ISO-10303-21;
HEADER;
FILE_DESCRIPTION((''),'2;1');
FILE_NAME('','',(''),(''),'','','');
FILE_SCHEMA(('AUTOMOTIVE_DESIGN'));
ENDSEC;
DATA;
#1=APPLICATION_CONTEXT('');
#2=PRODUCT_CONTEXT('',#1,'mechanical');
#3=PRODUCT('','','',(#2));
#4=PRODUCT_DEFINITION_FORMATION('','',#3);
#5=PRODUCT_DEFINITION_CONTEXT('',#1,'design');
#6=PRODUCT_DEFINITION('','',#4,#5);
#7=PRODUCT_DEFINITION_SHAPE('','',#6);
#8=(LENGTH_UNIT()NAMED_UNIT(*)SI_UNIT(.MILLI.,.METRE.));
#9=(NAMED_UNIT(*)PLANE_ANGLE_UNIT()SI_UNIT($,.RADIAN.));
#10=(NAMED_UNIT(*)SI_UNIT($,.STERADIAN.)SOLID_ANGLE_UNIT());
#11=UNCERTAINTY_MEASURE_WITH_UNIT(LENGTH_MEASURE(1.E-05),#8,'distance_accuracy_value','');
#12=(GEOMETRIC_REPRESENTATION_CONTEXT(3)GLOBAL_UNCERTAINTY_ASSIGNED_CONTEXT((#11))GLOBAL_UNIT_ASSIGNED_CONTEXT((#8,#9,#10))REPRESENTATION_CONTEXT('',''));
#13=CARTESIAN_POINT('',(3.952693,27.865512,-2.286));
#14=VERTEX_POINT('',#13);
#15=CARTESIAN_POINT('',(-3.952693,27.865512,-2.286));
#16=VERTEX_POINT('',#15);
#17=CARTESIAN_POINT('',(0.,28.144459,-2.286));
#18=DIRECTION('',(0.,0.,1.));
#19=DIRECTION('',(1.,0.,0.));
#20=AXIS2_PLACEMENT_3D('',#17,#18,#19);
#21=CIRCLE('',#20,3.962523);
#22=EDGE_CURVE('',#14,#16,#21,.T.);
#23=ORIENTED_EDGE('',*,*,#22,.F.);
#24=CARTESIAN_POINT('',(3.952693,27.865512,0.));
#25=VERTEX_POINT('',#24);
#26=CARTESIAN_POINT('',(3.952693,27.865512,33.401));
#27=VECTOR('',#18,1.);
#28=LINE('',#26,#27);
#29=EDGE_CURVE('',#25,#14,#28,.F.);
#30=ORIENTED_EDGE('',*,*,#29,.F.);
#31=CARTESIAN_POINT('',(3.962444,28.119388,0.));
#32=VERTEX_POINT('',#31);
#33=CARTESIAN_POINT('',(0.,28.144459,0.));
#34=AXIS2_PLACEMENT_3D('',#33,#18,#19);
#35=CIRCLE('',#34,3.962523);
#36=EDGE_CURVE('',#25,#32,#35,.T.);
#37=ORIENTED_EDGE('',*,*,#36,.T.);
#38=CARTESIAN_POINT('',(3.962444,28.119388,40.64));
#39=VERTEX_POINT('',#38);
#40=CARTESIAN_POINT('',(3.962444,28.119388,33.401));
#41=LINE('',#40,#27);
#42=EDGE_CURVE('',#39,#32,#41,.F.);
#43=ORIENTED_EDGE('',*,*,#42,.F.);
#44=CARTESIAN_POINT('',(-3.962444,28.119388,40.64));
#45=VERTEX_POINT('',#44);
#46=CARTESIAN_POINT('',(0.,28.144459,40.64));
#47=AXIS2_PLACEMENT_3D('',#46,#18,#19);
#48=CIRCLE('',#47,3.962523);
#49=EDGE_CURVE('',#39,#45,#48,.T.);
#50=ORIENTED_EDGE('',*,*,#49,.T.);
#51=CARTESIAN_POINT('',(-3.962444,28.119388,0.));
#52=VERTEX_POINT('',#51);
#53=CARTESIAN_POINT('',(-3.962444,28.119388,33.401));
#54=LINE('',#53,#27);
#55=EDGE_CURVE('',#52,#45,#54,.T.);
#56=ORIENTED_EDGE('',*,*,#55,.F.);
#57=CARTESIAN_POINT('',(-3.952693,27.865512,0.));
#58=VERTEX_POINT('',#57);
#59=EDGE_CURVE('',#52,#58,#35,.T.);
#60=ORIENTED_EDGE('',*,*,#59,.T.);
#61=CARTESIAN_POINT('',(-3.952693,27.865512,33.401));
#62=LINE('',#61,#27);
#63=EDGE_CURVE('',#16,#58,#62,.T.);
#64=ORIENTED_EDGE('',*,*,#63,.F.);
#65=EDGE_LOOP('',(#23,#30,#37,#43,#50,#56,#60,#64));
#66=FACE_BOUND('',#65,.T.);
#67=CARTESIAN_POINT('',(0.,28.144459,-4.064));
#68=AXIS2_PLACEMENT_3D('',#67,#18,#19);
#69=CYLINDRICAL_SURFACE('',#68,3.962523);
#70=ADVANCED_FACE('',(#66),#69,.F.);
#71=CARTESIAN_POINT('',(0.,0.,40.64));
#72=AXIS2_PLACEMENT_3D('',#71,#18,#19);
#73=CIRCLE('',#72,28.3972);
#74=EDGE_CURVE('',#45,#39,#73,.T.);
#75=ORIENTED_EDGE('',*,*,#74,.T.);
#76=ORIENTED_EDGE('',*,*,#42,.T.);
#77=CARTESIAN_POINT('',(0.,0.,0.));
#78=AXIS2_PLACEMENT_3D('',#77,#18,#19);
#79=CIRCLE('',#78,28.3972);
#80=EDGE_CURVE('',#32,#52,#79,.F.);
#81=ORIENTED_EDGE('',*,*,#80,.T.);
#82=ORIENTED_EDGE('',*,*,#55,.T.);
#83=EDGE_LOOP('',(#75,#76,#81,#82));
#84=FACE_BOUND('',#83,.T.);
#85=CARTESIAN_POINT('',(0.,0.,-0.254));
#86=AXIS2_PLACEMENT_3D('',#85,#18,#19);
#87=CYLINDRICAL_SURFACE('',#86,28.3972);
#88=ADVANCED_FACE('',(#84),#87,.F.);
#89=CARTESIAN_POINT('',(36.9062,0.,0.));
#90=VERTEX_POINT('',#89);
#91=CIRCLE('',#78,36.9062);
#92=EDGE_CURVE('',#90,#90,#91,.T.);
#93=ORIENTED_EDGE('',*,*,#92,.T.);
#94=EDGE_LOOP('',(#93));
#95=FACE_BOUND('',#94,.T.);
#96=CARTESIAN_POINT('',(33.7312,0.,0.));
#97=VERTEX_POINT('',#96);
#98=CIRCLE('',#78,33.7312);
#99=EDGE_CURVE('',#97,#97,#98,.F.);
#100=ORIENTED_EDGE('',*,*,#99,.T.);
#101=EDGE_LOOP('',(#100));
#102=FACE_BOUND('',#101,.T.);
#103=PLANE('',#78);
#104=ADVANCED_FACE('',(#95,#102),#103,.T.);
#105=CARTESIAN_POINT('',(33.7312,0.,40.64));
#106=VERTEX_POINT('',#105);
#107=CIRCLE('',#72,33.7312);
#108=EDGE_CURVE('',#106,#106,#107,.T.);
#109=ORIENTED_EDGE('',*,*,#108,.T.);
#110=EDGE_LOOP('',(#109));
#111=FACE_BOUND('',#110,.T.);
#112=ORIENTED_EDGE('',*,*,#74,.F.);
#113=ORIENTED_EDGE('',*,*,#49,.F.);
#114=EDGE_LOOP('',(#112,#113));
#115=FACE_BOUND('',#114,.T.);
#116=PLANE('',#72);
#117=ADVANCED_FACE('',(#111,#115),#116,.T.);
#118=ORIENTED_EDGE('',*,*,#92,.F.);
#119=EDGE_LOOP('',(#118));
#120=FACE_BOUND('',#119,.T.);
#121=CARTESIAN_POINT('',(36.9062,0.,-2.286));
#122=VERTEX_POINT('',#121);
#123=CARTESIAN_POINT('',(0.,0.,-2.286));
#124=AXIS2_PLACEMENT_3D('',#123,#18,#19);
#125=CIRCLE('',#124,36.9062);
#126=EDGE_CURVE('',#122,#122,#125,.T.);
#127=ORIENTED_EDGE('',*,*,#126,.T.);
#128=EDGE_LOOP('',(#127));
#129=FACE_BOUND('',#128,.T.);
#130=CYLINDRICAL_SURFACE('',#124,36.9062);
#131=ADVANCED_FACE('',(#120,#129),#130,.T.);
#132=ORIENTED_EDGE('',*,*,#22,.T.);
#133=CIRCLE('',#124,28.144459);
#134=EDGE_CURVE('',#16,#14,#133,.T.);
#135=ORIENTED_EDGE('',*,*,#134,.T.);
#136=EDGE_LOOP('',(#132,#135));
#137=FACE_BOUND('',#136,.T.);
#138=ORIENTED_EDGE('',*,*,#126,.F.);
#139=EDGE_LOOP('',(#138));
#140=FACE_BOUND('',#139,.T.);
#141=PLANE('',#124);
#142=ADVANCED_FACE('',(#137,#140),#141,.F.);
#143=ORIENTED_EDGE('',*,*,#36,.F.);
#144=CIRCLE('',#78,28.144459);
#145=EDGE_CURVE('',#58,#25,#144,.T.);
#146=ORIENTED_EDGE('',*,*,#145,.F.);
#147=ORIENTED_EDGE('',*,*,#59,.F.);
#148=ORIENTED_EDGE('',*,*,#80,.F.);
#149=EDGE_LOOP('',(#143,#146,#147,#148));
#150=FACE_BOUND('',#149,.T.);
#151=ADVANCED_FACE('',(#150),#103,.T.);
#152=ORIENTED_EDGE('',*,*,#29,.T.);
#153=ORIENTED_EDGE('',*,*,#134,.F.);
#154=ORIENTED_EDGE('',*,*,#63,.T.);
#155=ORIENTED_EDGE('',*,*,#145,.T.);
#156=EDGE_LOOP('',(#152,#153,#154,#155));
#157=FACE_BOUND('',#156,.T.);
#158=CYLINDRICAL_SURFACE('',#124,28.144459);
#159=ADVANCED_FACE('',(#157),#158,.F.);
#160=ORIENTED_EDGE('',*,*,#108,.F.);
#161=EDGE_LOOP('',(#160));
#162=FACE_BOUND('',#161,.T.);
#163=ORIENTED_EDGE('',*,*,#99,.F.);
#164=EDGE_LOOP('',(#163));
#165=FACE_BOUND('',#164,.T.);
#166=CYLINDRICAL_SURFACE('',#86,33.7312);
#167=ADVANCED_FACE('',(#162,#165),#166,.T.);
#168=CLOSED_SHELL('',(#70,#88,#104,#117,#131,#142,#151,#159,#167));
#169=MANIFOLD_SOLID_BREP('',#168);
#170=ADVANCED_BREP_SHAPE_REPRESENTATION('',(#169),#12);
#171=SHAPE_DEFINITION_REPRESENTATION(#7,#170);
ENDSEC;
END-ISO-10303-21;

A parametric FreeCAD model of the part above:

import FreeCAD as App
import Part
import Sketcher

V = App.Vector
Q = App.Units.Quantity

doc = App.newDocument("Part")
params = doc.addObject("Spreadsheet::Sheet", "Params")
for row, (alias, value) in enumerate([
    ("sketch1_diameter", "2.656 in"),
    ("sketch1_diameter2", "2.236 in"),
    ("pad1_length", "1.6 in"),
    ("pad1_length2", "0.01 in"),
    ("sketch2_diameter", "2.906 in"),
    ("pad2_length", "0.09 in"),
], start=1):
    params.set(f"A{row}", alias)
    params.set(f"B{row}", "=" + value)
    params.setAlias(f"B{row}", alias)

body = doc.addObject("PartDesign::Body", "Body")

# Sketch on XY plane
sketch1 = body.newObject("Sketcher::SketchObject", "Sketch")
sketch1.AttachmentSupport = (doc.getObject("XY_Plane"), [""])
sketch1.MapMode = "FlatFace"
sketch1.addGeometry(Part.Circle(V(0, 0, 0), V(0, 0, 1), 34), False)
sketch1.addGeometry(Part.Circle(V(0, 0, 0), V(0, 0, 1), 28), False)
sketch1.addConstraint(Sketcher.Constraint("Coincident", 0, 3, -1, 1))
sketch1.addConstraint(Sketcher.Constraint("Coincident", 1, 3, -1, 1))
sketch1.addConstraint(Sketcher.Constraint("Diameter", 0, Q("2.656 in")))
sketch1.addConstraint(Sketcher.Constraint("Diameter", 1, Q("2.236 in")))
sketch1.setExpression("Constraints[2]", "Params.sketch1_diameter")
sketch1.setExpression("Constraints[3]", "Params.sketch1_diameter2")
pad1 = body.newObject("PartDesign::Pad", "Pad")
pad1.Profile = sketch1
pad1.Type = "TwoLengths"
pad1.setExpression("Length", "Params.pad1_length")
pad1.setExpression("Length2", "Params.pad1_length2")

# Sketch on XY plane
sketch2 = body.newObject("Sketcher::SketchObject", "Sketch001")
sketch2.AttachmentSupport = (doc.getObject("XY_Plane"), [""])
sketch2.MapMode = "FlatFace"
sketch2.addGeometry(Part.Circle(V(0, 0, 0), V(0, 0, 1), 37), False)
sketch2.addGeometry(Part.Circle(V(0, 0, 0), V(0, 0, 1), 28), False)
sketch2.addConstraint(Sketcher.Constraint("Coincident", 0, 3, -1, 1))
sketch2.addConstraint(Sketcher.Constraint("Coincident", 1, 3, -1, 1))
sketch2.addConstraint(Sketcher.Constraint("Diameter", 0, Q("2.906 in")))
sketch2.addConstraint(Sketcher.Constraint("Diameter", 1, 56.288917))
sketch2.setExpression("Constraints[2]", "Params.sketch2_diameter")
pad2 = body.newObject("PartDesign::Pad", "Pad001")
pad2.Profile = sketch2
pad2.setExpression("Length", "Params.pad2_length")
pad2.Reversed = True

# Sketch on XY plane
sketch3 = body.newObject("Sketcher::SketchObject", "Sketch002")
sketch3.AttachmentSupport = (doc.getObject("XY_Plane"), [""])
sketch3.MapMode = "FlatFace"
sketch3.addGeometry(Part.Circle(V(0, 28.1, 0), V(0, 0, 1), 4), False)
sketch3.addConstraint(Sketcher.Constraint("PointOnObject", 0, 3, -2))
sketch3.addConstraint(Sketcher.Constraint("Diameter", 0, 7.925047))
sketch3.addConstraint(Sketcher.Constraint("DistanceY", -1, 1, 0, 3, 28.144459))
pocket1 = body.newObject("PartDesign::Pocket", "Pocket")
pocket1.Profile = sketch3
pocket1.Type = "ThroughAll"
pocket1.Midplane = True

doc.recompute()
